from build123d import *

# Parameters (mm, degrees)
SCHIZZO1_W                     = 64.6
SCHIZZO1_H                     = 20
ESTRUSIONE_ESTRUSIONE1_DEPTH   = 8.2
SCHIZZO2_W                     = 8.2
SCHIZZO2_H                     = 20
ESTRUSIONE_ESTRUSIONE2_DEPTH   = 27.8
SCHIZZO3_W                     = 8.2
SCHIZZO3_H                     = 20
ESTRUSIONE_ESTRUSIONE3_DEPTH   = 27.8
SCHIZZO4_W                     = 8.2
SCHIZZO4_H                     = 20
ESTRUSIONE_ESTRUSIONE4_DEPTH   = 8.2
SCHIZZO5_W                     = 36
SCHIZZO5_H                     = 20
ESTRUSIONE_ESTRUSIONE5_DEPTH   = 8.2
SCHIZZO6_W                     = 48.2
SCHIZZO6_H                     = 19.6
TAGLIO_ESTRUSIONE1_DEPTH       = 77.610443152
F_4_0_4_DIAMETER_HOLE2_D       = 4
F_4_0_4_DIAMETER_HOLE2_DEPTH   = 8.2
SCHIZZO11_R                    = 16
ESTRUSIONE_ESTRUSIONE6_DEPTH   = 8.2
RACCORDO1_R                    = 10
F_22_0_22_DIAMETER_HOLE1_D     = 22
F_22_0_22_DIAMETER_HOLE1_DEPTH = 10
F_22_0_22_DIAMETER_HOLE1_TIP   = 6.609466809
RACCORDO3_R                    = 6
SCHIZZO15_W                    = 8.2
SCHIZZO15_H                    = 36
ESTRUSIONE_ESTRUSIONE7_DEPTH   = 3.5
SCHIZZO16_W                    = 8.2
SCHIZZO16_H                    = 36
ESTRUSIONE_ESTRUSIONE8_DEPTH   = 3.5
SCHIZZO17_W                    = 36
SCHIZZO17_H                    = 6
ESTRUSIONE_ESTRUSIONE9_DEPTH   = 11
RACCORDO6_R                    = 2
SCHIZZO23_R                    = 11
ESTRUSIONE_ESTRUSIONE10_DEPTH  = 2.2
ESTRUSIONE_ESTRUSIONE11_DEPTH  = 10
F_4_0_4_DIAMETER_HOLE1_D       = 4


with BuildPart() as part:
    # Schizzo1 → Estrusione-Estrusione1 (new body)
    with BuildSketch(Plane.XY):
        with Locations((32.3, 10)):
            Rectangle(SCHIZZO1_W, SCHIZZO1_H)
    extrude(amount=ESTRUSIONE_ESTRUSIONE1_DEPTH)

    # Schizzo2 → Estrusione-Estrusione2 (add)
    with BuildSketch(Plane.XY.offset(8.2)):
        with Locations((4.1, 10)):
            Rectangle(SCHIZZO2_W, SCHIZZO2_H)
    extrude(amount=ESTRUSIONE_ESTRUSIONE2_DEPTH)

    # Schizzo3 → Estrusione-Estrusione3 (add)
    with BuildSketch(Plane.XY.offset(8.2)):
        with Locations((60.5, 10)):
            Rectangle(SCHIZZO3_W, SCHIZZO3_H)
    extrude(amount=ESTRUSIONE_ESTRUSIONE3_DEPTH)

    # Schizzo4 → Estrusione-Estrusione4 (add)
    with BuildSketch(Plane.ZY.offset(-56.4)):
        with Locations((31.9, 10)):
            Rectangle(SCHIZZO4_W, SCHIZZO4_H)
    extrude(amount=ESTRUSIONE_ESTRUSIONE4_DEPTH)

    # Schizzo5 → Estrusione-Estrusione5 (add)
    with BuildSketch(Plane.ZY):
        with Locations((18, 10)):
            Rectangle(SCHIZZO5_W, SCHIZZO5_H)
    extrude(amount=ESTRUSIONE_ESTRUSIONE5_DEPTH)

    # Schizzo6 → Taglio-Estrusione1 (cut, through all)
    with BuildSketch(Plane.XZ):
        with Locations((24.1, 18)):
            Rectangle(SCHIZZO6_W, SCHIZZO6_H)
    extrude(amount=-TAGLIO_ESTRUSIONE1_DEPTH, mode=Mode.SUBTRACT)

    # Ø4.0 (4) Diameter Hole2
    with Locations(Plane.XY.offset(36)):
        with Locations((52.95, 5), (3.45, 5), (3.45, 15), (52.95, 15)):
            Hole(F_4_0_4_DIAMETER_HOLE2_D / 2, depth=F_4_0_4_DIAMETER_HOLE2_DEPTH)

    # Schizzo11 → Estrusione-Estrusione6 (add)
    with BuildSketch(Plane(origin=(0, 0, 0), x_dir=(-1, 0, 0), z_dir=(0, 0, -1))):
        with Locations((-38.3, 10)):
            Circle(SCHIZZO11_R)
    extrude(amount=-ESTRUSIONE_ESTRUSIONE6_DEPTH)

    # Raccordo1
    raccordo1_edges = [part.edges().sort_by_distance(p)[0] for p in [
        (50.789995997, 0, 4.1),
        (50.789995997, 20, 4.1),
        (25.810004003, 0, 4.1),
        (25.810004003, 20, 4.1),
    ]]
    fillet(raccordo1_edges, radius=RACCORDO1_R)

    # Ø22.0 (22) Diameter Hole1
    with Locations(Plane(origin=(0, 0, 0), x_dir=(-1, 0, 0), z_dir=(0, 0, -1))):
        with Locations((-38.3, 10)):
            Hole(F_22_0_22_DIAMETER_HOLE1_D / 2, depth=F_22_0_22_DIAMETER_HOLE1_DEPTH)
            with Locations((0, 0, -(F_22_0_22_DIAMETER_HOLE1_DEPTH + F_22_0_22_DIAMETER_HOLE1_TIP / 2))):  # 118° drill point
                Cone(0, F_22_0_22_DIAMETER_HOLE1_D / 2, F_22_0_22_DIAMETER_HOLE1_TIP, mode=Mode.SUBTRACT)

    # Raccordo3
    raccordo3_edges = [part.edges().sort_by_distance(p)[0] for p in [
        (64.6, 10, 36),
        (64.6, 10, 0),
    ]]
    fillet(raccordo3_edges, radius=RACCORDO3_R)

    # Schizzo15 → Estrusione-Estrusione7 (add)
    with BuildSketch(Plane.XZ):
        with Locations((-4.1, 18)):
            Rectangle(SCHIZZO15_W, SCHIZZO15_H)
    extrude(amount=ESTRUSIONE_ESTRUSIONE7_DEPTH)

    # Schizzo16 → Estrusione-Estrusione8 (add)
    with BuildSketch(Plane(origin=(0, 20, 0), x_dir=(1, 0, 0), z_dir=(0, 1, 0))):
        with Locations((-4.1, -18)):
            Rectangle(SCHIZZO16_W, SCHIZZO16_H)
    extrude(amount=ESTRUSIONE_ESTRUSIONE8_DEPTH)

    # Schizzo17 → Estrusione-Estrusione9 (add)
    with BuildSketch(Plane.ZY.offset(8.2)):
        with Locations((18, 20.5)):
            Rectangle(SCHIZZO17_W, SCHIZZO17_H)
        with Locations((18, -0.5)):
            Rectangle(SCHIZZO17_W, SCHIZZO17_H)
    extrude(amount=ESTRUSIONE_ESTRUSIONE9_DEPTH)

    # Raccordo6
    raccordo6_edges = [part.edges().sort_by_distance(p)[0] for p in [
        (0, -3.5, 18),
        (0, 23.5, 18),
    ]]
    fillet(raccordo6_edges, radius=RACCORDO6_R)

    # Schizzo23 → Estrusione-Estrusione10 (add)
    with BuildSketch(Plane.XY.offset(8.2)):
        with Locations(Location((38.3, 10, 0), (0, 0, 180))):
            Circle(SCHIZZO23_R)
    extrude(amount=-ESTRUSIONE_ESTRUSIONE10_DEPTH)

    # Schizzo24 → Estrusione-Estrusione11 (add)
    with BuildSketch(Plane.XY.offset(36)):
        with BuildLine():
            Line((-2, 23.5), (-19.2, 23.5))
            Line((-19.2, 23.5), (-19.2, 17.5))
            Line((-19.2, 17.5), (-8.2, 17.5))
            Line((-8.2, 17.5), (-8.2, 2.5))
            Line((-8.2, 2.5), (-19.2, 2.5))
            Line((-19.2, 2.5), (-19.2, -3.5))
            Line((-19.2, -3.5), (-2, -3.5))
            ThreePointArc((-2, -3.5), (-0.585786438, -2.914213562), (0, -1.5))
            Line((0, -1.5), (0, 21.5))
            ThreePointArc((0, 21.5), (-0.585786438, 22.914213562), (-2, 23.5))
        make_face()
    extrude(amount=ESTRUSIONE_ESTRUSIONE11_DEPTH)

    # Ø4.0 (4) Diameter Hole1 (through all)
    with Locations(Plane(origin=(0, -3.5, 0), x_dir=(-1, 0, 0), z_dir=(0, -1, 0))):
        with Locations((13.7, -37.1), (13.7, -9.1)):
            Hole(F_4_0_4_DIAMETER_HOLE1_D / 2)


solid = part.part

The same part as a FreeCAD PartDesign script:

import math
import FreeCAD as App
import Part
import Sketcher

V = App.Vector


def edges_at(feature, points):
    """Names of the edges that pass closest to the given points."""
    edges = feature.Shape.Edges
    near = lambda p: min(range(len(edges)), key=lambda i: edges[i].distToShape(Part.Vertex(*p))[0])
    return sorted({f"Edge{near(p) + 1}" for p in points})

doc = App.newDocument("Part")
body = doc.addObject("PartDesign::Body", "Body")

# Sketch on XY plane
sketch1 = body.newObject("Sketcher::SketchObject", "Sketch")
sketch1.AttachmentSupport = (doc.getObject("XY_Plane"), [""])
sketch1.MapMode = "FlatFace"
sketch1.addGeometry(Part.LineSegment(V(0, 20, 0), V(0, 0, 0)), False)
sketch1.addGeometry(Part.LineSegment(V(0, 0, 0), V(65, 0, 0)), False)
sketch1.addGeometry(Part.LineSegment(V(65, 0, 0), V(65, 20, 0)), False)
sketch1.addGeometry(Part.LineSegment(V(65, 20, 0), V(0, 20, 0)), False)
sketch1.addConstraint(Sketcher.Constraint("Coincident", 0, 2, 1, 1))
sketch1.addConstraint(Sketcher.Constraint("Coincident", 1, 2, 2, 1))
sketch1.addConstraint(Sketcher.Constraint("Coincident", 2, 2, 3, 1))
sketch1.addConstraint(Sketcher.Constraint("Coincident", 3, 2, 0, 1))
sketch1.addConstraint(Sketcher.Constraint("Vertical", 0))
sketch1.addConstraint(Sketcher.Constraint("Horizontal", 1))
sketch1.addConstraint(Sketcher.Constraint("Vertical", 2))
sketch1.addConstraint(Sketcher.Constraint("Horizontal", 3))
sketch1.addConstraint(Sketcher.Constraint("Coincident", 0, 2, -1, 1))
sketch1.addConstraint(Sketcher.Constraint("DistanceY", 0, 2, 0, 1, 20.0))
sketch1.addConstraint(Sketcher.Constraint("DistanceX", 1, 1, 1, 2, 64.6))
pad1 = body.newObject("PartDesign::Pad", "Pad")
pad1.Profile = sketch1
pad1.Length = 8.2

# Sketch on XY plane
sketch2 = body.newObject("Sketcher::SketchObject", "Sketch001")
sketch2.AttachmentSupport = (doc.getObject("XY_Plane"), [""])
sketch2.MapMode = "FlatFace"
sketch2.AttachmentOffset = App.Placement(V(0, 0, 8.2), App.Rotation())
sketch2.addGeometry(Part.LineSegment(V(0, 20, 0), V(0, 0, 0)), False)
sketch2.addGeometry(Part.LineSegment(V(0, 0, 0), V(8, 0, 0)), False)
sketch2.addGeometry(Part.LineSegment(V(8, 0, 0), V(8, 20, 0)), False)
sketch2.addGeometry(Part.LineSegment(V(8, 20, 0), V(0, 20, 0)), False)
sketch2.addConstraint(Sketcher.Constraint("Coincident", 0, 2, 1, 1))
sketch2.addConstraint(Sketcher.Constraint("Coincident", 1, 2, 2, 1))
sketch2.addConstraint(Sketcher.Constraint("Coincident", 2, 2, 3, 1))
sketch2.addConstraint(Sketcher.Constraint("Coincident", 3, 2, 0, 1))
sketch2.addConstraint(Sketcher.Constraint("Vertical", 0))
sketch2.addConstraint(Sketcher.Constraint("Horizontal", 1))
sketch2.addConstraint(Sketcher.Constraint("Vertical", 2))
sketch2.addConstraint(Sketcher.Constraint("Horizontal", 3))
sketch2.addConstraint(Sketcher.Constraint("Coincident", 0, 2, -1, 1))
sketch2.addConstraint(Sketcher.Constraint("DistanceY", 0, 2, 0, 1, 20.0))
sketch2.addConstraint(Sketcher.Constraint("DistanceX", 1, 1, 1, 2, 8.2))
pad2 = body.newObject("PartDesign::Pad", "Pad001")
pad2.Profile = sketch2
pad2.Length = 27.8

# Sketch on XY plane
sketch3 = body.newObject("Sketcher::SketchObject", "Sketch002")
sketch3.AttachmentSupport = (doc.getObject("XY_Plane"), [""])
sketch3.MapMode = "FlatFace"
sketch3.AttachmentOffset = App.Placement(V(0, 0, 8.2), App.Rotation())
sketch3.addGeometry(Part.LineSegment(V(56, 20, 0), V(56, 0, 0)), False)
sketch3.addGeometry(Part.LineSegment(V(56, 0, 0), V(65, 0, 0)), False)
sketch3.addGeometry(Part.LineSegment(V(65, 0, 0), V(65, 20, 0)), False)
sketch3.addGeometry(Part.LineSegment(V(65, 20, 0), V(56, 20, 0)), False)
sketch3.addConstraint(Sketcher.Constraint("Coincident", 0, 2, 1, 1))
sketch3.addConstraint(Sketcher.Constraint("Coincident", 1, 2, 2, 1))
sketch3.addConstraint(Sketcher.Constraint("Coincident", 2, 2, 3, 1))
sketch3.addConstraint(Sketcher.Constraint("Coincident", 3, 2, 0, 1))
sketch3.addConstraint(Sketcher.Constraint("Vertical", 0))
sketch3.addConstraint(Sketcher.Constraint("Horizontal", 1))
sketch3.addConstraint(Sketcher.Constraint("Vertical", 2))
sketch3.addConstraint(Sketcher.Constraint("Horizontal", 3))
sketch3.addConstraint(Sketcher.Constraint("PointOnObject", 0, 2, -1))
sketch3.addConstraint(Sketcher.Constraint("DistanceY", 0, 2, 0, 1, 20.0))
sketch3.addConstraint(Sketcher.Constraint("DistanceX", 1, 1, 1, 2, 8.2))
sketch3.addConstraint(Sketcher.Constraint("DistanceX", -1, 1, 0, 2, 56.4))
pad3 = body.newObject("PartDesign::Pad", "Pad002")
pad3.Profile = sketch3
pad3.Length = 27.8

# Sketch on YZ plane
sketch4 = body.newObject("Sketcher::SketchObject", "Sketch003")
sketch4.AttachmentSupport = (doc.getObject("YZ_Plane"), [""])
sketch4.MapMode = "FlatFace"
sketch4.AttachmentOffset = App.Placement(V(0, 0, 56.4), App.Rotation())
sketch4.addGeometry(Part.LineSegment(V(20, 28, 0), V(0, 28, 0)), False)
sketch4.addGeometry(Part.LineSegment(V(0, 28, 0), V(0, 36, 0)), False)
sketch4.addGeometry(Part.LineSegment(V(0, 36, 0), V(20, 36, 0)), False)
sketch4.addGeometry(Part.LineSegment(V(20, 36, 0), V(20, 28, 0)), False)
sketch4.addConstraint(Sketcher.Constraint("Coincident", 0, 2, 1, 1))
sketch4.addConstraint(Sketcher.Constraint("Coincident", 1, 2, 2, 1))
sketch4.addConstraint(Sketcher.Constraint("Coincident", 2, 2, 3, 1))
sketch4.addConstraint(Sketcher.Constraint("Coincident", 3, 2, 0, 1))
sketch4.addConstraint(Sketcher.Constraint("Horizontal", 0))
sketch4.addConstraint(Sketcher.Constraint("Vertical", 1))
sketch4.addConstraint(Sketcher.Constraint("Horizontal", 2))
sketch4.addConstraint(Sketcher.Constraint("Vertical", 3))
sketch4.addConstraint(Sketcher.Constraint("PointOnObject", 0, 2, -2))
sketch4.addConstraint(Sketcher.Constraint("DistanceX", 0, 2, 0, 1, 20.0))
sketch4.addConstraint(Sketcher.Constraint("DistanceY", 1, 1, 1, 2, 8.2))
sketch4.addConstraint(Sketcher.Constraint("DistanceY", -1, 1, 1, 2, 36.0))
pad4 = body.newObject("PartDesign::Pad", "Pad003")
pad4.Profile = sketch4
pad4.Length = 8.2
pad4.Reversed = True

# Sketch on YZ plane
sketch5 = body.newObject("Sketcher::SketchObject", "Sketch004")
sketch5.AttachmentSupport = (doc.getObject("YZ_Plane"), [""])
sketch5.MapMode = "FlatFace"
sketch5.addGeometry(Part.LineSegment(V(20, 0, 0), V(0, 0, 0)), False)
sketch5.addGeometry(Part.LineSegment(V(0, 0, 0), V(0, 36, 0)), False)
sketch5.addGeometry(Part.LineSegment(V(0, 36, 0), V(20, 36, 0)), False)
sketch5.addGeometry(Part.LineSegment(V(20, 36, 0), V(20, 0, 0)), False)
sketch5.addConstraint(Sketcher.Constraint("Coincident", 0, 2, 1, 1))
sketch5.addConstraint(Sketcher.Constraint("Coincident", 1, 2, 2, 1))
sketch5.addConstraint(Sketcher.Constraint("Coincident", 2, 2, 3, 1))
sketch5.addConstraint(Sketcher.Constraint("Coincident", 3, 2, 0, 1))
sketch5.addConstraint(Sketcher.Constraint("Horizontal", 0))
sketch5.addConstraint(Sketcher.Constraint("Vertical", 1))
sketch5.addConstraint(Sketcher.Constraint("Horizontal", 2))
sketch5.addConstraint(Sketcher.Constraint("Vertical", 3))
sketch5.addConstraint(Sketcher.Constraint("Coincident", 0, 2, -1, 1))
sketch5.addConstraint(Sketcher.Constraint("DistanceX", 0, 2, 0, 1, 20.0))
sketch5.addConstraint(Sketcher.Constraint("DistanceY", 1, 1, 1, 2, 36.0))
pad5 = body.newObject("PartDesign::Pad", "Pad004")
pad5.Profile = sketch5
pad5.Length = 8.2
pad5.Reversed = True

# Sketch on XZ plane
sketch6 = body.newObject("Sketcher::SketchObject", "Sketch005")
sketch6.AttachmentSupport = (doc.getObject("XZ_Plane"), [""])
sketch6.MapMode = "FlatFace"
sketch6.addGeometry(Part.LineSegment(V(0, 28, 0), V(0, 8, 0)), False)
sketch6.addGeometry(Part.LineSegment(V(0, 8, 0), V(48, 8, 0)), False)
sketch6.addGeometry(Part.LineSegment(V(48, 8, 0), V(48, 28, 0)), False)
sketch6.addGeometry(Part.LineSegment(V(48, 28, 0), V(0, 28, 0)), False)
sketch6.addConstraint(Sketcher.Constraint("Coincident", 0, 2, 1, 1))
sketch6.addConstraint(Sketcher.Constraint("Coincident", 1, 2, 2, 1))
sketch6.addConstraint(Sketcher.Constraint("Coincident", 2, 2, 3, 1))
sketch6.addConstraint(Sketcher.Constraint("Coincident", 3, 2, 0, 1))
sketch6.addConstraint(Sketcher.Constraint("Vertical", 0))
sketch6.addConstraint(Sketcher.Constraint("Horizontal", 1))
sketch6.addConstraint(Sketcher.Constraint("Vertical", 2))
sketch6.addConstraint(Sketcher.Constraint("Horizontal", 3))
sketch6.addConstraint(Sketcher.Constraint("PointOnObject", 0, 2, -2))
sketch6.addConstraint(Sketcher.Constraint("DistanceX", 1, 1, 1, 2, 48.2))
sketch6.addConstraint(Sketcher.Constraint("DistanceY", 0, 2, 0, 1, 19.6))
sketch6.addConstraint(Sketcher.Constraint("DistanceY", -1, 1, 0, 2, 8.2))
pocket1 = body.newObject("PartDesign::Pocket", "Pocket")
pocket1.Profile = sketch6
pocket1.Type = "ThroughAll"

# Sketch on XY plane
sketch7 = body.newObject("Sketcher::SketchObject", "Sketch006")
sketch7.AttachmentSupport = (doc.getObject("XY_Plane"), [""])
sketch7.MapMode = "FlatFace"
sketch7.AttachmentOffset = App.Placement(V(0, 0, 36), App.Rotation())
sketch7.addGeometry(Part.Circle(V(53, 5, 0), V(0, 0, 1), 2), False)
sketch7.addGeometry(Part.Circle(V(3.5, 5, 0), V(0, 0, 1), 2), False)
sketch7.addGeometry(Part.Circle(V(3.5, 15, 0), V(0, 0, 1), 2), False)
sketch7.addGeometry(Part.Circle(V(53, 15, 0), V(0, 0, 1), 2), False)
sketch7.addConstraint(Sketcher.Constraint("Equal", 0, 1))
sketch7.addConstraint(Sketcher.Constraint("Equal", 1, 2))
sketch7.addConstraint(Sketcher.Constraint("Equal", 2, 3))
sketch7.addConstraint(Sketcher.Constraint("Horizontal", 0, 3, 1, 3))
sketch7.addConstraint(Sketcher.Constraint("Horizontal", 2, 3, 3, 3))
sketch7.addConstraint(Sketcher.Constraint("Vertical", 1, 3, 2, 3))
sketch7.addConstraint(Sketcher.Constraint("Vertical", 0, 3, 3, 3))
sketch7.addConstraint(Sketcher.Constraint("Diameter", 0, 4.0))
sketch7.addConstraint(Sketcher.Constraint("DistanceY", -1, 1, 0, 3, 5.0))
sketch7.addConstraint(Sketcher.Constraint("DistanceY", -1, 1, 2, 3, 15.0))
sketch7.addConstraint(Sketcher.Constraint("DistanceX", 1, 3, 0, 3, 49.5))
sketch7.addConstraint(Sketcher.Constraint("DistanceX", -1, 1, 0, 3, 52.95))
doc.recompute()
hole = body.newObject("PartDesign::Hole", "Hole")
hole.Profile = sketch7
hole.ThreadType = "None"
hole.Diameter = 4
hole.DepthType = "Dimension"
hole.Depth = 8.2
hole.DrillPoint = "Flat"

# Sketch on XY plane
sketch8 = body.newObject("Sketcher::SketchObject", "Sketch007")
sketch8.AttachmentSupport = (doc.getObject("XY_Plane"), [""])
sketch8.MapMode = "FlatFace"
sketch8.addGeometry(Part.Circle(V(38, 10, 0), V(0, 0, 1), 16), False)
sketch8.addConstraint(Sketcher.Constraint("Diameter", 0, 32.0))
sketch8.addConstraint(Sketcher.Constraint("DistanceY", -1, 1, 0, 3, 10.0))
sketch8.addConstraint(Sketcher.Constraint("DistanceX", -1, 1, 0, 3, 38.3))
pad6 = body.newObject("PartDesign::Pad", "Pad005")
pad6.Profile = sketch8
pad6.Length = 8.2
doc.recompute()

fillet = body.newObject("PartDesign::Fillet", "Fillet")
fillet.Base = (pad6, edges_at(pad6, [
    (50.79, 0, 4.1),
    (50.79, 20, 4.1),
    (25.81, 0, 4.1),
    (25.81, 20, 4.1),
]))
fillet.Radius = 10

# Sketch on XY plane
sketch9 = body.newObject("Sketcher::SketchObject", "Sketch008")
sketch9.AttachmentSupport = (doc.getObject("XY_Plane"), [""])
sketch9.MapMode = "FlatFace"
sketch9.addGeometry(Part.Circle(V(38, 10, 0), V(0, 0, 1), 11), False)
sketch9.addConstraint(Sketcher.Constraint("Diameter", 0, 22.0))
sketch9.addConstraint(Sketcher.Constraint("DistanceY", -1, 1, 0, 3, 10.0))
sketch9.addConstraint(Sketcher.Constraint("DistanceX", -1, 1, 0, 3, 38.3))
doc.recompute()
hole2 = body.newObject("PartDesign::Hole", "Hole001")
hole2.Profile = sketch9
hole2.ThreadType = "None"
hole2.Diameter = 22
hole2.DepthType = "Dimension"
hole2.Depth = 10
hole2.DrillPoint = "Angled"
hole2.DrillPointAngle = 118
hole2.Reversed = True
doc.recompute()

fillet2 = body.newObject("PartDesign::Fillet", "Fillet001")
fillet2.Base = (hole2, edges_at(hole2, [(64.6, 10, 36), (64.6, 10, 0)]))
fillet2.Radius = 6

# Sketch on XZ plane
sketch10 = body.newObject("Sketcher::SketchObject", "Sketch009")
sketch10.AttachmentSupport = (doc.getObject("XZ_Plane"), [""])
sketch10.MapMode = "FlatFace"
sketch10.addGeometry(Part.LineSegment(V(-8, 36, 0), V(-8, 0, 0)), False)
sketch10.addGeometry(Part.LineSegment(V(-8, 0, 0), V(0, 0, 0)), False)
sketch10.addGeometry(Part.LineSegment(V(0, 0, 0), V(0, 36, 0)), False)
sketch10.addGeometry(Part.LineSegment(V(0, 36, 0), V(-8, 36, 0)), False)
sketch10.addConstraint(Sketcher.Constraint("Coincident", 0, 2, 1, 1))
sketch10.addConstraint(Sketcher.Constraint("Coincident", 1, 2, 2, 1))
sketch10.addConstraint(Sketcher.Constraint("Coincident", 2, 2, 3, 1))
sketch10.addConstraint(Sketcher.Constraint("Coincident", 3, 2, 0, 1))
sketch10.addConstraint(Sketcher.Constraint("Vertical", 0))
sketch10.addConstraint(Sketcher.Constraint("Horizontal", 1))
sketch10.addConstraint(Sketcher.Constraint("Vertical", 2))
sketch10.addConstraint(Sketcher.Constraint("Horizontal", 3))
sketch10.addConstraint(Sketcher.Constraint("Coincident", 1, 2, -1, 1))
sketch10.addConstraint(Sketcher.Constraint("DistanceY", 0, 2, 0, 1, 36.0))
sketch10.addConstraint(Sketcher.Constraint("DistanceX", 1, 1, 1, 2, 8.2))
pad7 = body.newObject("PartDesign::Pad", "Pad006")
pad7.Profile = sketch10
pad7.Length = 3.5

# Sketch on XZ plane
sketch11 = body.newObject("Sketcher::SketchObject", "Sketch010")
sketch11.AttachmentSupport = (doc.getObject("XZ_Plane"), [""])
sketch11.MapMode = "FlatFace"
sketch11.AttachmentOffset = App.Placement(V(0, 0, -20), App.Rotation())
sketch11.addGeometry(Part.LineSegment(V(-8, 0, 0), V(-8, 36, 0)), False)
sketch11.addGeometry(Part.LineSegment(V(-8, 36, 0), V(0, 36, 0)), False)
sketch11.addGeometry(Part.LineSegment(V(0, 36, 0), V(0, 0, 0)), False)
sketch11.addGeometry(Part.LineSegment(V(0, 0, 0), V(-8, 0, 0)), False)
sketch11.addConstraint(Sketcher.Constraint("Coincident", 0, 2, 1, 1))
sketch11.addConstraint(Sketcher.Constraint("Coincident", 1, 2, 2, 1))
sketch11.addConstraint(Sketcher.Constraint("Coincident", 2, 2, 3, 1))
sketch11.addConstraint(Sketcher.Constraint("Coincident", 3, 2, 0, 1))
sketch11.addConstraint(Sketcher.Constraint("Vertical", 0))
sketch11.addConstraint(Sketcher.Constraint("Horizontal", 1))
sketch11.addConstraint(Sketcher.Constraint("Vertical", 2))
sketch11.addConstraint(Sketcher.Constraint("Horizontal", 3))
sketch11.addConstraint(Sketcher.Constraint("Coincident", 2, 2, -1, 1))
sketch11.addConstraint(Sketcher.Constraint("DistanceY", 0, 1, 0, 2, 36.0))
sketch11.addConstraint(Sketcher.Constraint("DistanceX", 1, 1, 1, 2, 8.2))
pad8 = body.newObject("PartDesign::Pad", "Pad007")
pad8.Profile = sketch11
pad8.Length = 3.5
pad8.Reversed = True

# Sketch on YZ plane
sketch12 = body.newObject("Sketcher::SketchObject", "Sketch011")
sketch12.AttachmentSupport = (doc.getObject("YZ_Plane"), [""])
sketch12.MapMode = "FlatFace"
sketch12.AttachmentOffset = App.Placement(V(0, 0, -8.2), App.Rotation())
sketch12.addGeometry(Part.LineSegment(V(24, 0, 0), V(18, 0, 0)), False)
sketch12.addGeometry(Part.LineSegment(V(18, 0, 0), V(18, 36, 0)), False)
sketch12.addGeometry(Part.LineSegment(V(18, 36, 0), V(24, 36, 0)), False)
sketch12.addGeometry(Part.LineSegment(V(24, 36, 0), V(24, 0, 0)), False)
sketch12.addGeometry(Part.LineSegment(V(2, 0, 0), V(-4, 0, 0)), False)
sketch12.addGeometry(Part.LineSegment(V(-4, 0, 0), V(-4, 36, 0)), False)
sketch12.addGeometry(Part.LineSegment(V(-4, 36, 0), V(2, 36, 0)), False)
sketch12.addGeometry(Part.LineSegment(V(2, 36, 0), V(2, 0, 0)), False)
sketch12.addConstraint(Sketcher.Constraint("Coincident", 0, 2, 1, 1))
sketch12.addConstraint(Sketcher.Constraint("Coincident", 1, 2, 2, 1))
sketch12.addConstraint(Sketcher.Constraint("Coincident", 2, 2, 3, 1))
sketch12.addConstraint(Sketcher.Constraint("Coincident", 3, 2, 0, 1))
sketch12.addConstraint(Sketcher.Constraint("Coincident", 4, 2, 5, 1))
sketch12.addConstraint(Sketcher.Constraint("Coincident", 5, 2, 6, 1))
sketch12.addConstraint(Sketcher.Constraint("Coincident", 6, 2, 7, 1))
sketch12.addConstraint(Sketcher.Constraint("Coincident", 7, 2, 4, 1))
sketch12.addConstraint(Sketcher.Constraint("Horizontal", 0))
sketch12.addConstraint(Sketcher.Constraint("Vertical", 1))
sketch12.addConstraint(Sketcher.Constraint("Horizontal", 2))
sketch12.addConstraint(Sketcher.Constraint("Vertical", 3))
sketch12.addConstraint(Sketcher.Constraint("Horizontal", 4))
sketch12.addConstraint(Sketcher.Constraint("Vertical", 5))
sketch12.addConstraint(Sketcher.Constraint("Horizontal", 6))
sketch12.addConstraint(Sketcher.Constraint("Vertical", 7))
sketch12.addConstraint(Sketcher.Constraint("PointOnObject", 0, 2, -1))
sketch12.addConstraint(Sketcher.Constraint("PointOnObject", 4, 2, -1))
sketch12.addConstraint(Sketcher.Constraint("Horizontal", 2, 2, 5, 2))
sketch12.addConstraint(Sketcher.Constraint("Equal", 2, 4))
sketch12.addConstraint(Sketcher.Constraint("DistanceX", 0, 2, 0, 1, 6.0))
sketch12.addConstraint(Sketcher.Constraint("DistanceY", 1, 1, 1, 2, 36.0))
sketch12.addConstraint(Sketcher.Constraint("DistanceX", 4, 2, 0, 2, 21.0))
sketch12.addConstraint(Sketcher.Constraint("DistanceX", -1, 1, 0, 2, 17.5))
pad9 = body.newObject("PartDesign::Pad", "Pad008")
pad9.Profile = sketch12
pad9.Length = 11
pad9.Reversed = True
doc.recompute()

fillet3 = body.newObject("PartDesign::Fillet", "Fillet002")
fillet3.Base = (pad9, edges_at(pad9, [(0, -3.5, 18), (0, 23.5, 18)]))
fillet3.Radius = 2

# Sketch on XY plane
sketch13 = body.newObject("Sketcher::SketchObject", "Sketch012")
sketch13.AttachmentSupport = (doc.getObject("XY_Plane"), [""])
sketch13.MapMode = "FlatFace"
sketch13.AttachmentOffset = App.Placement(V(0, 0, 8.2), App.Rotation())
sketch13.addGeometry(Part.Circle(V(38, 10, 0), V(0, 0, 1), 11), False)
sketch13.addConstraint(Sketcher.Constraint("Diameter", 0, 22.0))
sketch13.addConstraint(Sketcher.Constraint("DistanceY", -1, 1, 0, 3, 10.0))
sketch13.addConstraint(Sketcher.Constraint("DistanceX", -1, 1, 0, 3, 38.3))
pad10 = body.newObject("PartDesign::Pad", "Pad009")
pad10.Profile = sketch13
pad10.Length = 2.2
pad10.Reversed = True

# Sketch on XY plane
sketch14 = body.newObject("Sketcher::SketchObject", "Sketch013")
sketch14.AttachmentSupport = (doc.getObject("XY_Plane"), [""])
sketch14.MapMode = "FlatFace"
sketch14.AttachmentOffset = App.Placement(V(0, 0, 36), App.Rotation())
sketch14.addGeometry(Part.LineSegment(V(-2, 23.5, 0), V(-19.2, 23.5, 0)), False)
sketch14.addGeometry(Part.LineSegment(V(-19.2, 23.5, 0), V(-19.2, 17.5, 0)), False)
sketch14.addGeometry(Part.LineSegment(V(-19.2, 17.5, 0), V(-8.2, 17.5, 0)), False)
sketch14.addGeometry(Part.LineSegment(V(-8.2, 17.5, 0), V(-8.2, 2.5, 0)), False)
sketch14.addGeometry(Part.LineSegment(V(-8.2, 2.5, 0), V(-19.2, 2.5, 0)), False)
sketch14.addGeometry(Part.LineSegment(V(-19.2, 2.5, 0), V(-19.2, -3.5, 0)), False)
sketch14.addGeometry(Part.LineSegment(V(-19.2, -3.5, 0), V(-2, -3.5, 0)), False)
sketch14.addGeometry(Part.ArcOfCircle(Part.Circle(V(-2, -1.5, 0), V(0, 0, 1), 2), math.radians(-90), math.radians(0)), False)
sketch14.addGeometry(Part.LineSegment(V(0, -1.5, 0), V(0, 21.5, 0)), False)
sketch14.addGeometry(Part.ArcOfCircle(Part.Circle(V(-2, 21.5, 0), V(0, 0, 1), 2), math.radians(0), math.radians(90)), False)
sketch14.addConstraint(Sketcher.Constraint("Coincident", 0, 2, 1, 1))
sketch14.addConstraint(Sketcher.Constraint("Coincident", 1, 2, 2, 1))
sketch14.addConstraint(Sketcher.Constraint("Coincident", 2, 2, 3, 1))
sketch14.addConstraint(Sketcher.Constraint("Coincident", 3, 2, 4, 1))
sketch14.addConstraint(Sketcher.Constraint("Coincident", 4, 2, 5, 1))
sketch14.addConstraint(Sketcher.Constraint("Coincident", 5, 2, 6, 1))
sketch14.addConstraint(Sketcher.Constraint("Tangent", 6, 2, 7, 1))
sketch14.addConstraint(Sketcher.Constraint("Tangent", 7, 2, 8, 1))
sketch14.addConstraint(Sketcher.Constraint("Tangent", 8, 2, 9, 1))
sketch14.addConstraint(Sketcher.Constraint("Tangent", 9, 2, 0, 1))
sketch14.addConstraint(Sketcher.Constraint("Horizontal", 0))
sketch14.addConstraint(Sketcher.Constraint("Vertical", 1))
sketch14.addConstraint(Sketcher.Constraint("Horizontal", 2))
sketch14.addConstraint(Sketcher.Constraint("Vertical", 3))
sketch14.addConstraint(Sketcher.Constraint("Horizontal", 4))
sketch14.addConstraint(Sketcher.Constraint("Vertical", 5))
sketch14.addConstraint(Sketcher.Constraint("Horizontal", 6))
sketch14.addConstraint(Sketcher.Constraint("Vertical", 8))
sketch14.addConstraint(Sketcher.Constraint("Equal", 7, 9))
sketch14.addConstraint(Sketcher.Constraint("PointOnObject", 7, 2, -2))
sketch14.addConstraint(Sketcher.Constraint("Vertical", 1, 2, 4, 2))
sketch14.addConstraint(Sketcher.Constraint("Equal", 1, 5))
sketch14.addConstraint(Sketcher.Constraint("Radius", 7, 2.0))
sketch14.addConstraint(Sketcher.Constraint("DistanceX", 2, 1, 2, 2, 11.0))
sketch14.addConstraint(Sketcher.Constraint("DistanceY", 1, 2, 1, 1, 6.0))
sketch14.addConstraint(Sketcher.Constraint("DistanceY", 3, 2, 3, 1, 15.0))
sketch14.addConstraint(Sketcher.Constraint("DistanceX", 0, 2, 0, 1, 17.2))
sketch14.addConstraint(Sketcher.Constraint("DistanceY", 7, 3, -1, 1, 1.5))
pad11 = body.newObject("PartDesign::Pad", "Pad010")
pad11.Profile = sketch14
pad11.Length = 10

# Sketch on XZ plane
sketch15 = body.newObject("Sketcher::SketchObject", "Sketch014")
sketch15.AttachmentSupport = (doc.getObject("XZ_Plane"), [""])
sketch15.MapMode = "FlatFace"
sketch15.AttachmentOffset = App.Placement(V(0, 0, 3.5), App.Rotation())
sketch15.addGeometry(Part.Circle(V(-13.7, 37.1, 0), V(0, 0, 1), 2), False)
sketch15.addGeometry(Part.Circle(V(-13.7, 9.1, 0), V(0, 0, 1), 2), False)
sketch15.addConstraint(Sketcher.Constraint("Equal", 0, 1))
sketch15.addConstraint(Sketcher.Constraint("Vertical", 0, 3, 1, 3))
sketch15.addConstraint(Sketcher.Constraint("Diameter", 0, 4.0))
sketch15.addConstraint(Sketcher.Constraint("DistanceY", 1, 3, 0, 3, 28.0))
sketch15.addConstraint(Sketcher.Constraint("DistanceX", 0, 3, -1, 1, 13.7))
sketch15.addConstraint(Sketcher.Constraint("DistanceY", -1, 1, 0, 3, 37.1))
doc.recompute()
hole3 = body.newObject("PartDesign::Hole", "Hole002")
hole3.Profile = sketch15
hole3.ThreadType = "None"
hole3.Diameter = 4
hole3.DepthType = "ThroughAll"

doc.recompute()
